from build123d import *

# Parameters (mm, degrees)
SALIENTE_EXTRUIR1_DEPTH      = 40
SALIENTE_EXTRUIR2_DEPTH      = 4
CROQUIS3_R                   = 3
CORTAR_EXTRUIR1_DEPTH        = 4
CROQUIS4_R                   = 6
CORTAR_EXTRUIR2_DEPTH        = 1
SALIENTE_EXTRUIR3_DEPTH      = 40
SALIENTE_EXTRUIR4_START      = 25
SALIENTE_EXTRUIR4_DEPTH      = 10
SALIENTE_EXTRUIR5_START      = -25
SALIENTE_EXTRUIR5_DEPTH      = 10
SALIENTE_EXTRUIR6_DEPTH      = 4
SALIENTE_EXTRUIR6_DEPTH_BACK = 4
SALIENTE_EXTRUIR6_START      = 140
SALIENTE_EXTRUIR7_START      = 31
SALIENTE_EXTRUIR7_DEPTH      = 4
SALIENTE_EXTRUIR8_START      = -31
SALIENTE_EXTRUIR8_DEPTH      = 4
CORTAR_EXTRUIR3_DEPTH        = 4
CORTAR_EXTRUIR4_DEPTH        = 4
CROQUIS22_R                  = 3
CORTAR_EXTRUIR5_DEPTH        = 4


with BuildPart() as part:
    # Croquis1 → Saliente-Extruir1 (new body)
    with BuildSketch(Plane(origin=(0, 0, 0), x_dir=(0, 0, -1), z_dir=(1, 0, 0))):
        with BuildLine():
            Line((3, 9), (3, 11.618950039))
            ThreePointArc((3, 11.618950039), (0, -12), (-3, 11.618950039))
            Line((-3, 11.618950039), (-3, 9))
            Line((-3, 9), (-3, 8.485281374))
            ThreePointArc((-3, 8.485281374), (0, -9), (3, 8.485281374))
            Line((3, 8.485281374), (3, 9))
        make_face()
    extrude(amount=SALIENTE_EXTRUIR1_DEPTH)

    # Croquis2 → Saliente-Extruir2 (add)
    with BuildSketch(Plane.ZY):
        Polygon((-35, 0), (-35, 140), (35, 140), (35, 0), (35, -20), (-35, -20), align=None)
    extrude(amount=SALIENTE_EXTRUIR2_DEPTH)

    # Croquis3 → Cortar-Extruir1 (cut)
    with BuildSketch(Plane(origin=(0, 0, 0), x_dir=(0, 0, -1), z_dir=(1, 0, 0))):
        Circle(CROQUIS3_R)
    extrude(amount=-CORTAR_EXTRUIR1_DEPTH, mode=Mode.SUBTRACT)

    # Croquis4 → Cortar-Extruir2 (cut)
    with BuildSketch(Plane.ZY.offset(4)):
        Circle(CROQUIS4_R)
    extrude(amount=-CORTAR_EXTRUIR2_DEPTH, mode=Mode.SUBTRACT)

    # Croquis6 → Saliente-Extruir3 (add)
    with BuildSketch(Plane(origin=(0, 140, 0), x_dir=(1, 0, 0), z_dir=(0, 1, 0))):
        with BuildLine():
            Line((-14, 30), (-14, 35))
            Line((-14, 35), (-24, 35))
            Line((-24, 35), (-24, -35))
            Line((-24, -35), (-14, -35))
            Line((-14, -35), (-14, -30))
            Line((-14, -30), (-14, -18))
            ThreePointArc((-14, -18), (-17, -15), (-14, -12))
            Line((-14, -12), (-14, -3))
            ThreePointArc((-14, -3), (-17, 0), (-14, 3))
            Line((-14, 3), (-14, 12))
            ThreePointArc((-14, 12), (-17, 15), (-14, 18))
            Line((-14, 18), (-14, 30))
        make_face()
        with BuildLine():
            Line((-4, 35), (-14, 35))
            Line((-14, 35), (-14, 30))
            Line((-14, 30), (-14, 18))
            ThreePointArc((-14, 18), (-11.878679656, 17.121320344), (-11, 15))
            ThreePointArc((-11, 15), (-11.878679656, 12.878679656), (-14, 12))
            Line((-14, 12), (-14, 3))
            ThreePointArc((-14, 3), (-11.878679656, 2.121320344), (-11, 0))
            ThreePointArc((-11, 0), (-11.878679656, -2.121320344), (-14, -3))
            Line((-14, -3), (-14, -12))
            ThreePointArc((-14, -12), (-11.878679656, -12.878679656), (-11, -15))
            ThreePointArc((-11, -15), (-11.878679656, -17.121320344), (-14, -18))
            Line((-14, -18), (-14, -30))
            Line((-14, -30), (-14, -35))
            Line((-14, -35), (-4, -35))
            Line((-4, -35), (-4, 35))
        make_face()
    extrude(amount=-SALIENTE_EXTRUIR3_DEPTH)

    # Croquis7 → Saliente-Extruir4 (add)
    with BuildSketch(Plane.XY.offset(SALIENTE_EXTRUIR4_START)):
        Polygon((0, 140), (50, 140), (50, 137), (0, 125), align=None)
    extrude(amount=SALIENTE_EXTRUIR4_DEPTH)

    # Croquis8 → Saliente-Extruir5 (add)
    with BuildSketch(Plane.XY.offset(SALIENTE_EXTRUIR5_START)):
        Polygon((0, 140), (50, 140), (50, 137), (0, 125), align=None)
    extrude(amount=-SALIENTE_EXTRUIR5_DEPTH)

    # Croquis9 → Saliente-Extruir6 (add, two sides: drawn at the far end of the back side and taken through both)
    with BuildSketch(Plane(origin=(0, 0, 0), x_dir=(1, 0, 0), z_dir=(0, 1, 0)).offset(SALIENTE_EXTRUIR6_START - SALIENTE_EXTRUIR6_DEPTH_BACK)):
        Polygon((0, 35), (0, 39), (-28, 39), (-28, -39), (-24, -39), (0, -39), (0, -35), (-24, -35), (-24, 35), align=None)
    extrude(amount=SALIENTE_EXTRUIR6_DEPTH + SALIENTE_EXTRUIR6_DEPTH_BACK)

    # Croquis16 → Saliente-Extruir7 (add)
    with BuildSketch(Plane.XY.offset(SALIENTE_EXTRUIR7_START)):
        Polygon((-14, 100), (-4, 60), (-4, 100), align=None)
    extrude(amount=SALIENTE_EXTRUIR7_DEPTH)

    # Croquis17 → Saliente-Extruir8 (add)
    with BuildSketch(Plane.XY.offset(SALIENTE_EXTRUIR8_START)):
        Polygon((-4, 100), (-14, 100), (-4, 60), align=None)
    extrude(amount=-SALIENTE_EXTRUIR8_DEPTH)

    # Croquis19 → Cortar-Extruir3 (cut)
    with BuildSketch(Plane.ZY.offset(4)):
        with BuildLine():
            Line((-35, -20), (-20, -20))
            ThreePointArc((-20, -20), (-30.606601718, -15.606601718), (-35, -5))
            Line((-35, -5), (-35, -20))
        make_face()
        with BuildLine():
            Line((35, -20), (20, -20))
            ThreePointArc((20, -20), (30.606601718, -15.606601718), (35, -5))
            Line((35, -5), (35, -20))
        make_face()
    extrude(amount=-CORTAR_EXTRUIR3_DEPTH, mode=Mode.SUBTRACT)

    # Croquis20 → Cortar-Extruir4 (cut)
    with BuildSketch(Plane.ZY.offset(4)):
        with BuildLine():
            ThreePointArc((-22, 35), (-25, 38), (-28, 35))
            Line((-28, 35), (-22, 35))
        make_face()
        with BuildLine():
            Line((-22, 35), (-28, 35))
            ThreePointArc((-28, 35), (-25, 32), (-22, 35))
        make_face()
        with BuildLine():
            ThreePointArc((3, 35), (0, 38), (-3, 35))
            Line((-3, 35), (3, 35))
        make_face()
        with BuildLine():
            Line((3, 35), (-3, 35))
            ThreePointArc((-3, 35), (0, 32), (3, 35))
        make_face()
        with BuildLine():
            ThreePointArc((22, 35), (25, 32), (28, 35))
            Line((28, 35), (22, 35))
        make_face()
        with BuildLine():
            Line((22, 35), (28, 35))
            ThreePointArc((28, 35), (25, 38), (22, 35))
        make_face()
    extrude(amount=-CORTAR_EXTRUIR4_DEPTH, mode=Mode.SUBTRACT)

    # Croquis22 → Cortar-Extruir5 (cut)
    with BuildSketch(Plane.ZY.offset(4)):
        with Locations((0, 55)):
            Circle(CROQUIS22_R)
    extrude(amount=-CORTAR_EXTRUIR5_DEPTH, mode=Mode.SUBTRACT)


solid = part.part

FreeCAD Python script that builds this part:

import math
import FreeCAD as App
import Part
import Sketcher

V = App.Vector

doc = App.newDocument("Part")
body = doc.addObject("PartDesign::Body", "Body")

# Sketch on YZ plane
sketch1 = doc.addObject("Sketcher::SketchObject", "Sketch")
body.addObject(sketch1)
sketch1.AttachmentSupport = (doc.YZ_Plane, [""])
sketch1.MapMode = "FlatFace"
sketch1.addGeometry(Part.ArcOfCircle(Part.Circle(V(0, 0, 0), V(0, 0, 1), 12), math.radians(14), math.radians(346)), False)
sketch1.addGeometry(Part.LineSegment(V(11.6, -3, 0), V(8.5, -3, 0)), False)
sketch1.addGeometry(Part.ArcOfCircle(Part.Circle(V(0, 0, 0), V(0, 0, 1), 9), math.radians(19), math.radians(341)), False)
sketch1.addGeometry(Part.LineSegment(V(8.5, 3, 0), V(11.6, 3, 0)), False)
sketch1.addConstraint(Sketcher.Constraint("Coincident", 0, 2, 1, 1))
sketch1.addConstraint(Sketcher.Constraint("Coincident", 1, 2, 2, 2))
sketch1.addConstraint(Sketcher.Constraint("Coincident", 2, 1, 3, 1))
sketch1.addConstraint(Sketcher.Constraint("Coincident", 3, 2, 0, 1))
sketch1.addConstraint(Sketcher.Constraint("Horizontal", 1))
sketch1.addConstraint(Sketcher.Constraint("Horizontal", 3))
sketch1.addConstraint(Sketcher.Constraint("Coincident", 0, 3, -1, 1))
sketch1.addConstraint(Sketcher.Constraint("Coincident", 2, 3, -1, 1))
sketch1.addConstraint(Sketcher.Constraint("Vertical", 1, 2, 2, 1))
sketch1.addConstraint(Sketcher.Constraint("Radius", 0, 12.0))
sketch1.addConstraint(Sketcher.Constraint("Radius", 2, 9.0))
sketch1.addConstraint(Sketcher.Constraint("DistanceY", 0, 2, -1, 1, 3.0))
pad1 = doc.addObject("PartDesign::Pad", "Pad")
body.addObject(pad1)
pad1.Profile = sketch1
pad1.Length = 40

# Sketch on YZ plane
sketch2 = doc.addObject("Sketcher::SketchObject", "Sketch001")
body.addObject(sketch2)
sketch2.AttachmentSupport = (doc.YZ_Plane, [""])
sketch2.MapMode = "FlatFace"
sketch2.addGeometry(Part.LineSegment(V(140, -35, 0), V(-20, -35, 0)), False)
sketch2.addGeometry(Part.LineSegment(V(-20, -35, 0), V(-20, 35, 0)), False)
sketch2.addGeometry(Part.LineSegment(V(-20, 35, 0), V(140, 35, 0)), False)
sketch2.addGeometry(Part.LineSegment(V(140, 35, 0), V(140, -35, 0)), False)
sketch2.addConstraint(Sketcher.Constraint("Coincident", 0, 2, 1, 1))
sketch2.addConstraint(Sketcher.Constraint("Coincident", 1, 2, 2, 1))
sketch2.addConstraint(Sketcher.Constraint("Coincident", 2, 2, 3, 1))
sketch2.addConstraint(Sketcher.Constraint("Coincident", 3, 2, 0, 1))
sketch2.addConstraint(Sketcher.Constraint("Horizontal", 0))
sketch2.addConstraint(Sketcher.Constraint("Vertical", 1))
sketch2.addConstraint(Sketcher.Constraint("Horizontal", 2))
sketch2.addConstraint(Sketcher.Constraint("Vertical", 3))
sketch2.addConstraint(Sketcher.Constraint("DistanceX", 0, 2, 0, 1, 160.0))
sketch2.addConstraint(Sketcher.Constraint("DistanceY", 1, 1, 1, 2, 70.0))
sketch2.addConstraint(Sketcher.Constraint("DistanceX", 0, 2, -1, 1, 20.0))
sketch2.addConstraint(Sketcher.Constraint("DistanceY", 0, 2, -1, 1, 35.0))
pad2 = doc.addObject("PartDesign::Pad", "Pad001")
body.addObject(pad2)
pad2.Profile = sketch2
pad2.Length = 4
pad2.Reversed = True

# Sketch on YZ plane
sketch3 = doc.addObject("Sketcher::SketchObject", "Sketch002")
body.addObject(sketch3)
sketch3.AttachmentSupport = (doc.YZ_Plane, [""])
sketch3.MapMode = "FlatFace"
sketch3.addGeometry(Part.Circle(V(0, 0, 0), V(0, 0, 1), 3), False)
sketch3.addConstraint(Sketcher.Constraint("Coincident", 0, 3, -1, 1))
sketch3.addConstraint(Sketcher.Constraint("Diameter", 0, 6.0))
pocket1 = doc.addObject("PartDesign::Pocket", "Pocket")
body.addObject(pocket1)
pocket1.Profile = sketch3
pocket1.Length = 4

# Sketch on YZ plane
sketch4 = doc.addObject("Sketcher::SketchObject", "Sketch003")
body.addObject(sketch4)
sketch4.AttachmentSupport = (doc.YZ_Plane, [""])
sketch4.MapMode = "FlatFace"
sketch4.AttachmentOffset = App.Placement(V(0, 0, -4), App.Rotation())
sketch4.addGeometry(Part.Circle(V(0, 0, 0), V(0, 0, 1), 6), False)
sketch4.addConstraint(Sketcher.Constraint("Coincident", 0, 3, -1, 1))
sketch4.addConstraint(Sketcher.Constraint("Diameter", 0, 12.0))
pocket2 = doc.addObject("PartDesign::Pocket", "Pocket001")
body.addObject(pocket2)
pocket2.Profile = sketch4
pocket2.Length = 1
pocket2.Reversed = True

# Sketch on XZ plane
sketch5 = doc.addObject("Sketcher::SketchObject", "Sketch004")
body.addObject(sketch5)
sketch5.AttachmentSupport = (doc.XZ_Plane, [""])
sketch5.MapMode = "FlatFace"
sketch5.AttachmentOffset = App.Placement(V(0, 0, -140), App.Rotation())
sketch5.addGeometry(Part.LineSegment(V(-24, -35, 0), V(-24, 35, 0)), False)
sketch5.addGeometry(Part.LineSegment(V(-24, 35, 0), V(-4, 35, 0)), False)
sketch5.addGeometry(Part.LineSegment(V(-4, 35, 0), V(-4, -35, 0)), False)
sketch5.addGeometry(Part.LineSegment(V(-4, -35, 0), V(-24, -35, 0)), False)
sketch5.addGeometry(Part.ArcOfCircle(Part.Circle(V(-14, 15, 0), V(0, 0, 1), 3), math.radians(90), math.radians(270)), False)
sketch5.addGeometry(Part.ArcOfCircle(Part.Circle(V(-14, 15, 0), V(0, 0, 1), 3), math.radians(-90), math.radians(0)), False)
sketch5.addGeometry(Part.ArcOfCircle(Part.Circle(V(-14, 15, 0), V(0, 0, 1), 3), math.radians(0), math.radians(90)), False)
sketch5.addGeometry(Part.ArcOfCircle(Part.Circle(V(-14, 0, 0), V(0, 0, 1), 3), math.radians(90), math.radians(270)), False)
sketch5.addGeometry(Part.ArcOfCircle(Part.Circle(V(-14, 0, 0), V(0, 0, 1), 3), math.radians(-90), math.radians(0)), False)
sketch5.addGeometry(Part.ArcOfCircle(Part.Circle(V(-14, 0, 0), V(0, 0, 1), 3), math.radians(0), math.radians(90)), False)
sketch5.addGeometry(Part.ArcOfCircle(Part.Circle(V(-14, -15, 0), V(0, 0, 1), 3), math.radians(90), math.radians(270)), False)
sketch5.addGeometry(Part.ArcOfCircle(Part.Circle(V(-14, -15, 0), V(0, 0, 1), 3), math.radians(-90), math.radians(0)), False)
sketch5.addGeometry(Part.ArcOfCircle(Part.Circle(V(-14, -15, 0), V(0, 0, 1), 3), math.radians(0), math.radians(90)), False)
sketch5.addConstraint(Sketcher.Constraint("Coincident", 0, 2, 1, 1))
sketch5.addConstraint(Sketcher.Constraint("Coincident", 1, 2, 2, 1))
sketch5.addConstraint(Sketcher.Constraint("Coincident", 2, 2, 3, 1))
sketch5.addConstraint(Sketcher.Constraint("Coincident", 3, 2, 0, 1))
sketch5.addConstraint(Sketcher.Constraint("Tangent", 4, 2, 5, 1))
sketch5.addConstraint(Sketcher.Constraint("Tangent", 5, 2, 6, 1))
sketch5.addConstraint(Sketcher.Constraint("Tangent", 6, 2, 4, 1))
sketch5.addConstraint(Sketcher.Constraint("Tangent", 7, 2, 8, 1))
sketch5.addConstraint(Sketcher.Constraint("Tangent", 8, 2, 9, 1))
sketch5.addConstraint(Sketcher.Constraint("Tangent", 9, 2, 7, 1))
sketch5.addConstraint(Sketcher.Constraint("Tangent", 10, 2, 11, 1))
sketch5.addConstraint(Sketcher.Constraint("Tangent", 11, 2, 12, 1))
sketch5.addConstraint(Sketcher.Constraint("Tangent", 12, 2, 10, 1))
sketch5.addConstraint(Sketcher.Constraint("Vertical", 0))
sketch5.addConstraint(Sketcher.Constraint("Horizontal", 1))
sketch5.addConstraint(Sketcher.Constraint("Vertical", 2))
sketch5.addConstraint(Sketcher.Constraint("Horizontal", 3))
sketch5.addConstraint(Sketcher.Constraint("Equal", 6, 7))
sketch5.addConstraint(Sketcher.Constraint("Equal", 9, 10))
sketch5.addConstraint(Sketcher.Constraint("Symmetric", 4, 3, 10, 3, -1))
sketch5.addConstraint(Sketcher.Constraint("Symmetric", 7, 2, 9, 2, -1))
sketch5.addConstraint(Sketcher.Constraint("PointOnObject", 8, 2, -1))
sketch5.addConstraint(Sketcher.Constraint("Horizontal", 6, 3, 5, 2))
sketch5.addConstraint(Sketcher.Constraint("Horizontal", 12, 3, 11, 2))
sketch5.addConstraint(Sketcher.Constraint("Vertical", 6, 3, 7, 3))
sketch5.addConstraint(Sketcher.Constraint("Vertical", 12, 3, 4, 2))
sketch5.addConstraint(Sketcher.Constraint("Vertical", 4, 2, 6, 2))
sketch5.addConstraint(Sketcher.Constraint("Vertical", 6, 2, 7, 2))
sketch5.addConstraint(Sketcher.Constraint("Vertical", 9, 2, 10, 2))
sketch5.addConstraint(Sketcher.Constraint("Vertical", 10, 2, 12, 2))
sketch5.addConstraint(Sketcher.Constraint("Radius", 4, 3.0))
sketch5.addConstraint(Sketcher.Constraint("DistanceX", 1, 1, 1, 2, 20.0))
sketch5.addConstraint(Sketcher.Constraint("DistanceY", 0, 1, 0, 2, 70.0))
sketch5.addConstraint(Sketcher.Constraint("DistanceX", 4, 3, -1, 1, 14.0))
sketch5.addConstraint(Sketcher.Constraint("DistanceY", -1, 1, 4, 3, 15.0))
sketch5.addConstraint(Sketcher.Constraint("DistanceX", 0, 2, -1, 1, 24.0))
sketch5.addConstraint(Sketcher.Constraint("DistanceY", -1, 1, 0, 2, 35.0))
pad3 = doc.addObject("PartDesign::Pad", "Pad002")
body.addObject(pad3)
pad3.Profile = sketch5
pad3.Length = 40

# Sketch on XY plane
sketch6 = doc.addObject("Sketcher::SketchObject", "Sketch005")
body.addObject(sketch6)
sketch6.AttachmentSupport = (doc.XY_Plane, [""])
sketch6.MapMode = "FlatFace"
sketch6.AttachmentOffset = App.Placement(V(0, 0, 25), App.Rotation())
sketch6.addGeometry(Part.LineSegment(V(50, 140, 0), V(0, 140, 0)), False)
sketch6.addGeometry(Part.LineSegment(V(0, 140, 0), V(0, 125, 0)), False)
sketch6.addGeometry(Part.LineSegment(V(0, 125, 0), V(50, 137, 0)), False)
sketch6.addGeometry(Part.LineSegment(V(50, 137, 0), V(50, 140, 0)), False)
sketch6.addConstraint(Sketcher.Constraint("Coincident", 0, 2, 1, 1))
sketch6.addConstraint(Sketcher.Constraint("Coincident", 1, 2, 2, 1))
sketch6.addConstraint(Sketcher.Constraint("Coincident", 2, 2, 3, 1))
sketch6.addConstraint(Sketcher.Constraint("Coincident", 3, 2, 0, 1))
sketch6.addConstraint(Sketcher.Constraint("Horizontal", 0))
sketch6.addConstraint(Sketcher.Constraint("Vertical", 1))
sketch6.addConstraint(Sketcher.Constraint("Vertical", 3))
sketch6.addConstraint(Sketcher.Constraint("PointOnObject", 0, 2, -2))
sketch6.addConstraint(Sketcher.Constraint("DistanceX", 0, 2, 0, 1, 50.0))
sketch6.addConstraint(Sketcher.Constraint("DistanceY", 1, 2, 1, 1, 15.0))
sketch6.addConstraint(Sketcher.Constraint("DistanceY", 3, 1, 3, 2, 3.0))
sketch6.addConstraint(Sketcher.Constraint("DistanceY", -1, 1, 0, 2, 140.0))
pad4 = doc.addObject("PartDesign::Pad", "Pad003")
body.addObject(pad4)
pad4.Profile = sketch6
pad4.Length = 10

# Sketch on XY plane
sketch7 = doc.addObject("Sketcher::SketchObject", "Sketch006")
body.addObject(sketch7)
sketch7.AttachmentSupport = (doc.XY_Plane, [""])
sketch7.MapMode = "FlatFace"
sketch7.AttachmentOffset = App.Placement(V(0, 0, -25), App.Rotation())
sketch7.addGeometry(Part.LineSegment(V(50, 140, 0), V(0, 140, 0)), False)
sketch7.addGeometry(Part.LineSegment(V(0, 140, 0), V(0, 125, 0)), False)
sketch7.addGeometry(Part.LineSegment(V(0, 125, 0), V(50, 137, 0)), False)
sketch7.addGeometry(Part.LineSegment(V(50, 137, 0), V(50, 140, 0)), False)
sketch7.addConstraint(Sketcher.Constraint("Coincident", 0, 2, 1, 1))
sketch7.addConstraint(Sketcher.Constraint("Coincident", 1, 2, 2, 1))
sketch7.addConstraint(Sketcher.Constraint("Coincident", 2, 2, 3, 1))
sketch7.addConstraint(Sketcher.Constraint("Coincident", 3, 2, 0, 1))
sketch7.addConstraint(Sketcher.Constraint("Horizontal", 0))
sketch7.addConstraint(Sketcher.Constraint("Vertical", 1))
sketch7.addConstraint(Sketcher.Constraint("Vertical", 3))
sketch7.addConstraint(Sketcher.Constraint("PointOnObject", 0, 2, -2))
sketch7.addConstraint(Sketcher.Constraint("DistanceX", 0, 2, 0, 1, 50.0))
sketch7.addConstraint(Sketcher.Constraint("DistanceY", 1, 2, 1, 1, 15.0))
sketch7.addConstraint(Sketcher.Constraint("DistanceY", 3, 1, 3, 2, 3.0))
sketch7.addConstraint(Sketcher.Constraint("DistanceY", -1, 1, 0, 2, 140.0))
pad5 = doc.addObject("PartDesign::Pad", "Pad004")
body.addObject(pad5)
pad5.Profile = sketch7
pad5.Length = 10
pad5.Reversed = True

# Sketch on XZ plane
sketch8 = doc.addObject("Sketcher::SketchObject", "Sketch007")
body.addObject(sketch8)
sketch8.AttachmentSupport = (doc.XZ_Plane, [""])
sketch8.MapMode = "FlatFace"
sketch8.AttachmentOffset = App.Placement(V(0, 0, -140), App.Rotation())
sketch8.addGeometry(Part.LineSegment(V(0, -35, 0), V(0, -39, 0)), False)
sketch8.addGeometry(Part.LineSegment(V(0, -39, 0), V(-28, -39, 0)), False)
sketch8.addGeometry(Part.LineSegment(V(-28, -39, 0), V(-28, 39, 0)), False)
sketch8.addGeometry(Part.LineSegment(V(-28, 39, 0), V(0, 39, 0)), False)
sketch8.addGeometry(Part.LineSegment(V(0, 39, 0), V(0, 35, 0)), False)
sketch8.addGeometry(Part.LineSegment(V(0, 35, 0), V(-24, 35, 0)), False)
sketch8.addGeometry(Part.LineSegment(V(-24, 35, 0), V(-24, -35, 0)), False)
sketch8.addGeometry(Part.LineSegment(V(-24, -35, 0), V(0, -35, 0)), False)
sketch8.addConstraint(Sketcher.Constraint("Coincident", 0, 2, 1, 1))
sketch8.addConstraint(Sketcher.Constraint("Coincident", 1, 2, 2, 1))
sketch8.addConstraint(Sketcher.Constraint("Coincident", 2, 2, 3, 1))
sketch8.addConstraint(Sketcher.Constraint("Coincident", 3, 2, 4, 1))
sketch8.addConstraint(Sketcher.Constraint("Coincident", 4, 2, 5, 1))
sketch8.addConstraint(Sketcher.Constraint("Coincident", 5, 2, 6, 1))
sketch8.addConstraint(Sketcher.Constraint("Coincident", 6, 2, 7, 1))
sketch8.addConstraint(Sketcher.Constraint("Coincident", 7, 2, 0, 1))
sketch8.addConstraint(Sketcher.Constraint("Vertical", 0))
sketch8.addConstraint(Sketcher.Constraint("Horizontal", 1))
sketch8.addConstraint(Sketcher.Constraint("Vertical", 2))
sketch8.addConstraint(Sketcher.Constraint("Horizontal", 3))
sketch8.addConstraint(Sketcher.Constraint("Vertical", 4))
sketch8.addConstraint(Sketcher.Constraint("Horizontal", 5))
sketch8.addConstraint(Sketcher.Constraint("Vertical", 6))
sketch8.addConstraint(Sketcher.Constraint("Horizontal", 7))
sketch8.addConstraint(Sketcher.Constraint("Symmetric", 0, 2, 3, 2, -1, 1))
sketch8.addConstraint(Sketcher.Constraint("Symmetric", 4, 2, 7, 2, -1))
sketch8.addConstraint(Sketcher.Constraint("DistanceX", 1, 2, 1, 1, 28.0))
sketch8.addConstraint(Sketcher.Constraint("DistanceX", 5, 2, 5, 1, 24.0))
sketch8.addConstraint(Sketcher.Constraint("DistanceY", 0, 2, 0, 1, 4.0))
sketch8.addConstraint(Sketcher.Constraint("DistanceY", 2, 1, 2, 2, 78.0))
pad6 = doc.addObject("PartDesign::Pad", "Pad005")
body.addObject(pad6)
pad6.Profile = sketch8
pad6.Type = "TwoLengths"
pad6.Length = 4
pad6.Length2 = 4
pad6.Reversed = True

# Sketch on XY plane
sketch9 = doc.addObject("Sketcher::SketchObject", "Sketch008")
body.addObject(sketch9)
sketch9.AttachmentSupport = (doc.XY_Plane, [""])
sketch9.MapMode = "FlatFace"
sketch9.AttachmentOffset = App.Placement(V(0, 0, 31), App.Rotation())
sketch9.addGeometry(Part.LineSegment(V(-14, 100, 0), V(-4, 60, 0)), False)
sketch9.addGeometry(Part.LineSegment(V(-4, 60, 0), V(-4, 100, 0)), False)
sketch9.addGeometry(Part.LineSegment(V(-4, 100, 0), V(-14, 100, 0)), False)
sketch9.addConstraint(Sketcher.Constraint("Coincident", 0, 2, 1, 1))
sketch9.addConstraint(Sketcher.Constraint("Coincident", 1, 2, 2, 1))
sketch9.addConstraint(Sketcher.Constraint("Coincident", 2, 2, 0, 1))
sketch9.addConstraint(Sketcher.Constraint("Vertical", 1))
sketch9.addConstraint(Sketcher.Constraint("Horizontal", 2))
sketch9.addConstraint(Sketcher.Constraint("DistanceX", 2, 2, 2, 1, 10.0))
sketch9.addConstraint(Sketcher.Constraint("DistanceY", 1, 1, 1, 2, 40.0))
sketch9.addConstraint(Sketcher.Constraint("DistanceX", 0, 2, -1, 1, 4.0))
sketch9.addConstraint(Sketcher.Constraint("DistanceY", -1, 1, 0, 2, 60.0))
pad7 = doc.addObject("PartDesign::Pad", "Pad006")
body.addObject(pad7)
pad7.Profile = sketch9
pad7.Length = 4

# Sketch on XY plane
sketch10 = doc.addObject("Sketcher::SketchObject", "Sketch009")
body.addObject(sketch10)
sketch10.AttachmentSupport = (doc.XY_Plane, [""])
sketch10.MapMode = "FlatFace"
sketch10.AttachmentOffset = App.Placement(V(0, 0, -31), App.Rotation())
sketch10.addGeometry(Part.LineSegment(V(-4, 100, 0), V(-14, 100, 0)), False)
sketch10.addGeometry(Part.LineSegment(V(-14, 100, 0), V(-4, 60, 0)), False)
sketch10.addGeometry(Part.LineSegment(V(-4, 60, 0), V(-4, 100, 0)), False)
sketch10.addConstraint(Sketcher.Constraint("Coincident", 0, 2, 1, 1))
sketch10.addConstraint(Sketcher.Constraint("Coincident", 1, 2, 2, 1))
sketch10.addConstraint(Sketcher.Constraint("Coincident", 2, 2, 0, 1))
sketch10.addConstraint(Sketcher.Constraint("Horizontal", 0))
sketch10.addConstraint(Sketcher.Constraint("Vertical", 2))
sketch10.addConstraint(Sketcher.Constraint("DistanceX", 0, 2, 0, 1, 10.0))
sketch10.addConstraint(Sketcher.Constraint("DistanceY", 2, 1, 2, 2, 40.0))
sketch10.addConstraint(Sketcher.Constraint("DistanceX", 0, 2, -1, 1, 14.0))
sketch10.addConstraint(Sketcher.Constraint("DistanceY", -1, 1, 0, 2, 100.0))
pad8 = doc.addObject("PartDesign::Pad", "Pad007")
body.addObject(pad8)
pad8.Profile = sketch10
pad8.Length = 4
pad8.Reversed = True

# Sketch on YZ plane
sketch11 = doc.addObject("Sketcher::SketchObject", "Sketch010")
body.addObject(sketch11)
sketch11.AttachmentSupport = (doc.YZ_Plane, [""])
sketch11.MapMode = "FlatFace"
sketch11.AttachmentOffset = App.Placement(V(0, 0, -4), App.Rotation())
sketch11.addGeometry(Part.LineSegment(V(-20, -35, 0), V(-20, -20, 0)), False)
sketch11.addGeometry(Part.ArcOfCircle(Part.Circle(V(-5, -20, 0), V(0, 0, 1), 15), math.radians(180), math.radians(270)), False)
sketch11.addGeometry(Part.LineSegment(V(-5, -35, 0), V(-20, -35, 0)), False)
sketch11.addGeometry(Part.LineSegment(V(-20, 20, 0), V(-20, 35, 0)), False)
sketch11.addGeometry(Part.LineSegment(V(-20, 35, 0), V(-5, 35, 0)), False)
sketch11.addGeometry(Part.ArcOfCircle(Part.Circle(V(-5, 20, 0), V(0, 0, 1), 15), math.radians(90), math.radians(180)), False)
sketch11.addConstraint(Sketcher.Constraint("Tangent", 0, 2, 1, 1))
sketch11.addConstraint(Sketcher.Constraint("Tangent", 1, 2, 2, 1))
sketch11.addConstraint(Sketcher.Constraint("Coincident", 2, 2, 0, 1))
sketch11.addConstraint(Sketcher.Constraint("Coincident", 3, 2, 4, 1))
sketch11.addConstraint(Sketcher.Constraint("Tangent", 4, 2, 5, 1))
sketch11.addConstraint(Sketcher.Constraint("Tangent", 5, 2, 3, 1))
sketch11.addConstraint(Sketcher.Constraint("Vertical", 0))
sketch11.addConstraint(Sketcher.Constraint("Horizontal", 2))
sketch11.addConstraint(Sketcher.Constraint("Vertical", 3))
sketch11.addConstraint(Sketcher.Constraint("Horizontal", 4))
sketch11.addConstraint(Sketcher.Constraint("Equal", 1, 5))
sketch11.addConstraint(Sketcher.Constraint("Symmetric", 1, 3, 5, 3, -1))
sketch11.addConstraint(Sketcher.Constraint("Radius", 1, 15.0))
sketch11.addConstraint(Sketcher.Constraint("DistanceX", 1, 3, -1, 1, 5.0))
sketch11.addConstraint(Sketcher.Constraint("DistanceY", 1, 3, -1, 1, 20.0))
pocket3 = doc.addObject("PartDesign::Pocket", "Pocket002")
body.addObject(pocket3)
pocket3.Profile = sketch11
pocket3.Length = 4
pocket3.Reversed = True

# Sketch on YZ plane
sketch12 = doc.addObject("Sketcher::SketchObject", "Sketch011")
body.addObject(sketch12)
sketch12.AttachmentSupport = (doc.YZ_Plane, [""])
sketch12.MapMode = "FlatFace"
sketch12.AttachmentOffset = App.Placement(V(0, 0, -4), App.Rotation())
sketch12.addGeometry(Part.Circle(V(35, -25, 0), V(0, 0, 1), 3), False)
sketch12.addGeometry(Part.Circle(V(35, 0, 0), V(0, 0, 1), 3), False)
sketch12.addGeometry(Part.Circle(V(35, 25, 0), V(0, 0, 1), 3), False)
sketch12.addConstraint(Sketcher.Constraint("Equal", 0, 1))
sketch12.addConstraint(Sketcher.Constraint("Equal", 1, 2))
sketch12.addConstraint(Sketcher.Constraint("Symmetric", 0, 3, 2, 3, -1))
sketch12.addConstraint(Sketcher.Constraint("PointOnObject", 1, 3, -1))
sketch12.addConstraint(Sketcher.Constraint("Vertical", 0, 3, 1, 3))
sketch12.addConstraint(Sketcher.Constraint("Diameter", 0, 6.0))
sketch12.addConstraint(Sketcher.Constraint("DistanceX", -1, 1, 0, 3, 35.0))
sketch12.addConstraint(Sketcher.Constraint("DistanceY", 0, 3, -1, 1, 25.0))
pocket4 = doc.addObject("PartDesign::Pocket", "Pocket003")
body.addObject(pocket4)
pocket4.Profile = sketch12
pocket4.Length = 4
pocket4.Reversed = True

# Sketch on YZ plane
sketch13 = doc.addObject("Sketcher::SketchObject", "Sketch012")
body.addObject(sketch13)
sketch13.AttachmentSupport = (doc.YZ_Plane, [""])
sketch13.MapMode = "FlatFace"
sketch13.AttachmentOffset = App.Placement(V(0, 0, -4), App.Rotation())
sketch13.addGeometry(Part.Circle(V(55, 0, 0), V(0, 0, 1), 3), False)
sketch13.addConstraint(Sketcher.Constraint("PointOnObject", 0, 3, -1))
sketch13.addConstraint(Sketcher.Constraint("Diameter", 0, 6.0))
sketch13.addConstraint(Sketcher.Constraint("DistanceX", -1, 1, 0, 3, 55.0))
pocket5 = doc.addObject("PartDesign::Pocket", "Pocket004")
body.addObject(pocket5)
pocket5.Profile = sketch13
pocket5.Length = 4
pocket5.Reversed = True

doc.recompute()
